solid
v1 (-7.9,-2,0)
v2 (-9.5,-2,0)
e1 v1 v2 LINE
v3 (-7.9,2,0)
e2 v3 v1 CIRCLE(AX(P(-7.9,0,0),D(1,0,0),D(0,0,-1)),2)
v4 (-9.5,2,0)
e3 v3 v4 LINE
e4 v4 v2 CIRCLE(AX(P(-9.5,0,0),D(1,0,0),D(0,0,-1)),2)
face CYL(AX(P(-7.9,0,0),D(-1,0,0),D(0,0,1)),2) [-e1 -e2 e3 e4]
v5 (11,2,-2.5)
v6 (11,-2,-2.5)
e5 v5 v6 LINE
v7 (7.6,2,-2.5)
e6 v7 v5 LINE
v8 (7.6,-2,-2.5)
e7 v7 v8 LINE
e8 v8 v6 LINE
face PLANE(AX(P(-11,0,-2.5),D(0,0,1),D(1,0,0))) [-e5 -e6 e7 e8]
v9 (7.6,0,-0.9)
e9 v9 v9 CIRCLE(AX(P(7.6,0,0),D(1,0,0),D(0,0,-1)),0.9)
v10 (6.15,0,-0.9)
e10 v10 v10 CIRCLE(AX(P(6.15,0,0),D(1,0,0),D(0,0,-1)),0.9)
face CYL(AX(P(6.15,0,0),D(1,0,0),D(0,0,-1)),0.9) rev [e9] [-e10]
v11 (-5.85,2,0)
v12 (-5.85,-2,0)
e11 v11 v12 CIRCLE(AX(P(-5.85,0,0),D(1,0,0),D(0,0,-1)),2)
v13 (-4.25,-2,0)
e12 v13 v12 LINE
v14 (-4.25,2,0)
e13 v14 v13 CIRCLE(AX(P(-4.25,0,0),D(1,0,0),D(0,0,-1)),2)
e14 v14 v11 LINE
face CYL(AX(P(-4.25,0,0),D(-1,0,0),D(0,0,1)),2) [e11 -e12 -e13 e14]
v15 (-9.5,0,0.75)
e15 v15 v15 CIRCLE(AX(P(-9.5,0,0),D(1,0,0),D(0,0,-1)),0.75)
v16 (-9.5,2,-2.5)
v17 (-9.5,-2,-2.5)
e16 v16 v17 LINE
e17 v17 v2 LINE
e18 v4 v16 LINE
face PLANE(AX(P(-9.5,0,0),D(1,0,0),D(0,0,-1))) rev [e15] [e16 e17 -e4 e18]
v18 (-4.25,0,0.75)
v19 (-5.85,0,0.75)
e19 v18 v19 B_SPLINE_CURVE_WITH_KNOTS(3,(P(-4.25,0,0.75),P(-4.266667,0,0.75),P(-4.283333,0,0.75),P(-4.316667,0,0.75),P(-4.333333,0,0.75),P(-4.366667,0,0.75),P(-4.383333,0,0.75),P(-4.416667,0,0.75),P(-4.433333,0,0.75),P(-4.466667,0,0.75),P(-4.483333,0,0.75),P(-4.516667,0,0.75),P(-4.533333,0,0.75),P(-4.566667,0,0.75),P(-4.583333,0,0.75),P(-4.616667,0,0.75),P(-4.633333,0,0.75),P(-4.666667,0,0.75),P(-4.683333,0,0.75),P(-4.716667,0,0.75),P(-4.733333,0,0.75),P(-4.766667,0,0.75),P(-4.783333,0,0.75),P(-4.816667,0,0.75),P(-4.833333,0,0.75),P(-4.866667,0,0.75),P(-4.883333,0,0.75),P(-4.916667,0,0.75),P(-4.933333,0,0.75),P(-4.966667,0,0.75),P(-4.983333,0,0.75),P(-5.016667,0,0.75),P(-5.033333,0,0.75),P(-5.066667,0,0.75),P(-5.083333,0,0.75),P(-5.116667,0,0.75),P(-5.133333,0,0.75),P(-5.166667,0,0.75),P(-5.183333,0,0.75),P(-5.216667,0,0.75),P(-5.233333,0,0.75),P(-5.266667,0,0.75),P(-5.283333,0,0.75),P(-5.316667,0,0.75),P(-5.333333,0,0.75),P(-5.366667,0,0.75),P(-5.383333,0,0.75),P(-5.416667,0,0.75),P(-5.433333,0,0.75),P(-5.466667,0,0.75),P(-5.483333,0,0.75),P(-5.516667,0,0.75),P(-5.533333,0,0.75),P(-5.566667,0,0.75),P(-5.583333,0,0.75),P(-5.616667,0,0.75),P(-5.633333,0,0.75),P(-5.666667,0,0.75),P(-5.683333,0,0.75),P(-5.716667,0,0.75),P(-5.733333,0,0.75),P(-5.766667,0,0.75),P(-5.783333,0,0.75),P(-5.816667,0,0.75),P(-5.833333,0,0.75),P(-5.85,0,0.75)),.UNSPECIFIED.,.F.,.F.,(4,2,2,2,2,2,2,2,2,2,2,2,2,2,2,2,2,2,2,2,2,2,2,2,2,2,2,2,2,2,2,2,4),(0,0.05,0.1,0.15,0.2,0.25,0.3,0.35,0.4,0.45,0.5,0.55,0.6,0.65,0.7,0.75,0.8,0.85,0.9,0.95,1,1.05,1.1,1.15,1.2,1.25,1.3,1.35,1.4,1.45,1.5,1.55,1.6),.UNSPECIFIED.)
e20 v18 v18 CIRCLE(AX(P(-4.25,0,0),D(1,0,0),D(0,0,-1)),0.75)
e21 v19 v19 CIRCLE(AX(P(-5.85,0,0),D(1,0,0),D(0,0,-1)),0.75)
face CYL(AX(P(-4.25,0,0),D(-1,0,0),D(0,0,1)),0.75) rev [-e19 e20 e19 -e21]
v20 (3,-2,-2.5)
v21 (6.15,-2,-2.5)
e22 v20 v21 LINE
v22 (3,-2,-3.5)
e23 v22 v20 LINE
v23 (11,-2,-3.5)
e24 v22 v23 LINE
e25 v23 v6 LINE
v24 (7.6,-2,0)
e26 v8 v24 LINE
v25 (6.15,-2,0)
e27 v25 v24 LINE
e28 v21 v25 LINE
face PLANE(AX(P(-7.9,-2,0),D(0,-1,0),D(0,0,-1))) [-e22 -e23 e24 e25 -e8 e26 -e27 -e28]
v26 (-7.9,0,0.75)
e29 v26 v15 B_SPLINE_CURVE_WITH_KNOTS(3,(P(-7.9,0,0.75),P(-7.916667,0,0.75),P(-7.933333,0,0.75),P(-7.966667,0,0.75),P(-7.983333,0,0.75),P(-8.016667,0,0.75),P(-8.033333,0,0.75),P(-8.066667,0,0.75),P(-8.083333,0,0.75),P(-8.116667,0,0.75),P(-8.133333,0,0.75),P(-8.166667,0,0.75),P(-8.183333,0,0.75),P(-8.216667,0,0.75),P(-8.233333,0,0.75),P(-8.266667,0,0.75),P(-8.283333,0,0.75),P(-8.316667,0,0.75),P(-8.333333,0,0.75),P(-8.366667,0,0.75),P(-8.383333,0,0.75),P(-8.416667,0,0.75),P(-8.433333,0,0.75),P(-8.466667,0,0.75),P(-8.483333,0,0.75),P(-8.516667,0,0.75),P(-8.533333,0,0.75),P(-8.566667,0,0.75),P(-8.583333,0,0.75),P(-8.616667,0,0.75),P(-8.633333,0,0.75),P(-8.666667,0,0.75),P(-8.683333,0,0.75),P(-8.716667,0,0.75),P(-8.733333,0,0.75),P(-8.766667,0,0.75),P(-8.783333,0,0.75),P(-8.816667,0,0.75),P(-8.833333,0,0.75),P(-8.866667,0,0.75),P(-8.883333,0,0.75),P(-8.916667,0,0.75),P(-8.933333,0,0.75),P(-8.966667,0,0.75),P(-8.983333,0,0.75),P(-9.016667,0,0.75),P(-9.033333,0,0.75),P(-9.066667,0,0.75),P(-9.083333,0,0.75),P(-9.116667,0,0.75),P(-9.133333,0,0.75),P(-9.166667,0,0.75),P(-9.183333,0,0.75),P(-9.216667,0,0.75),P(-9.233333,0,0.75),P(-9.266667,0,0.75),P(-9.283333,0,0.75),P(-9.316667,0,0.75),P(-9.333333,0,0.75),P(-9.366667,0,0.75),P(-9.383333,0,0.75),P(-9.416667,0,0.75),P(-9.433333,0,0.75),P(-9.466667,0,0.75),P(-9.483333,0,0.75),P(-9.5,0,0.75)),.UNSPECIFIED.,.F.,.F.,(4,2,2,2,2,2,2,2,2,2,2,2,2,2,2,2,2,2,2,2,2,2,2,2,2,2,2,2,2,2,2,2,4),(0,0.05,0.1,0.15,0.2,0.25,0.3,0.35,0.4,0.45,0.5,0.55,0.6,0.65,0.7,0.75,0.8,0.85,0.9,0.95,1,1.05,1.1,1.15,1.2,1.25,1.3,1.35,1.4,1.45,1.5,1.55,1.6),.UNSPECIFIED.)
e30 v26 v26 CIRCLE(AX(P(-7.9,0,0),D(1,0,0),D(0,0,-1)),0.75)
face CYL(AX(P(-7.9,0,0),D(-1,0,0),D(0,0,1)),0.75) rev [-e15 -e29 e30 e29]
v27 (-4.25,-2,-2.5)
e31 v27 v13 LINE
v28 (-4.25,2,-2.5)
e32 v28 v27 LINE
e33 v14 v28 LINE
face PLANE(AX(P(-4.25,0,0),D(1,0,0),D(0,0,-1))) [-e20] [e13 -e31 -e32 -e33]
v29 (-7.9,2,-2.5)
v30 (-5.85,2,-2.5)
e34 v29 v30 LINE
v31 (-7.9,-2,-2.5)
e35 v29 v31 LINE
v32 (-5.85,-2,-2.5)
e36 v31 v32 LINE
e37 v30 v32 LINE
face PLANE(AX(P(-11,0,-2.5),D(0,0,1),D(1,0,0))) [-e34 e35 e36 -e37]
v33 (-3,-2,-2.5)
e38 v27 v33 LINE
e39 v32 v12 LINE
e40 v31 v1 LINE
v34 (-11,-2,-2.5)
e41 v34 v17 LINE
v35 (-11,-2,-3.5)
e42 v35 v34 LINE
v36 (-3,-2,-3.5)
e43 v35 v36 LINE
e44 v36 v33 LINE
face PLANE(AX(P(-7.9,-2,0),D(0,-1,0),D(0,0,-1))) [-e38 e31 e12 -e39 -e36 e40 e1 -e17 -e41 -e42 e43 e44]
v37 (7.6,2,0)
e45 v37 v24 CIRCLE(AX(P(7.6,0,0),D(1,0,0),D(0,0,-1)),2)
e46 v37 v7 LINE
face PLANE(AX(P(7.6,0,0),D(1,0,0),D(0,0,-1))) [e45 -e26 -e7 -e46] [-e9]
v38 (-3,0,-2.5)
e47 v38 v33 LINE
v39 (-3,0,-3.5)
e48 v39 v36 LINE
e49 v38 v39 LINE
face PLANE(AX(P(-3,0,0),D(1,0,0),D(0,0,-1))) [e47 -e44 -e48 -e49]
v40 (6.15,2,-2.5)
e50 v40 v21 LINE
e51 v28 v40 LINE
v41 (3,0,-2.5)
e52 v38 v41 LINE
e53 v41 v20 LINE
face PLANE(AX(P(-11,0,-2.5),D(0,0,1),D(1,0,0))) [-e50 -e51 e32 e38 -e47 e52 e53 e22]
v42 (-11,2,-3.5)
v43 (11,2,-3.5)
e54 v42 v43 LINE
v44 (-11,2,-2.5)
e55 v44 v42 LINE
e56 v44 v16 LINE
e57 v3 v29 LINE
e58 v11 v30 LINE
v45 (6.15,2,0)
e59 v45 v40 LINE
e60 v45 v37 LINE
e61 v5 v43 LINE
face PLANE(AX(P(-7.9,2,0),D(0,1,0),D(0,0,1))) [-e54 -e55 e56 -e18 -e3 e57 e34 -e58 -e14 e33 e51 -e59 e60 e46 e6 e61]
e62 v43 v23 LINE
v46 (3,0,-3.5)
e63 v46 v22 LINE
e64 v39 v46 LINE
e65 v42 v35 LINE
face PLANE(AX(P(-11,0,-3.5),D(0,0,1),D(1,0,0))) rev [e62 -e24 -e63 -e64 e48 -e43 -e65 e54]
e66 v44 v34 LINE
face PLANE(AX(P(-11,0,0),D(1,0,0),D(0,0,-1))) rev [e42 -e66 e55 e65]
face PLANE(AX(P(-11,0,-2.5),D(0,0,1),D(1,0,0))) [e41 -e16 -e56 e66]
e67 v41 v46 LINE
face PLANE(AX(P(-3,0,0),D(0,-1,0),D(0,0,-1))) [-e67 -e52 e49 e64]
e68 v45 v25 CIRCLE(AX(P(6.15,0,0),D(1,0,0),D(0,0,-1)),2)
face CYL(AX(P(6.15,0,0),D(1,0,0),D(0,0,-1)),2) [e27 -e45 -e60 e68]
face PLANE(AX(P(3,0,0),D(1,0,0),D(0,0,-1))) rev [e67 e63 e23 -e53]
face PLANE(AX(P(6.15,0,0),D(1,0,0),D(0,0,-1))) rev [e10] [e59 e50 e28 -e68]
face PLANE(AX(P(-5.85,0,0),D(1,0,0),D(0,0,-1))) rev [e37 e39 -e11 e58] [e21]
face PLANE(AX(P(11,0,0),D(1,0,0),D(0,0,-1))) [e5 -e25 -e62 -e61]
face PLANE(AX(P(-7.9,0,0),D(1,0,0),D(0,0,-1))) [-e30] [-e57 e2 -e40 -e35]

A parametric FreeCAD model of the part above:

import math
import FreeCAD as App
import Part
import Sketcher
from FreeCAD import Vector

doc = App.newDocument("Part")
body = doc.addObject("PartDesign::Body", "Body")

# Sketch on YZ plane
sketch1 = body.newObject("Sketcher::SketchObject", "Sketch")
sketch1.AttachmentSupport = (doc.getObject("YZ_Plane"), [""])
sketch1.MapMode = "FlatFace"
sketch1.AttachmentOffset = App.Placement(Vector(0, 0, -9.5), App.Rotation())
sketch1.addGeometry([
    Part.LineSegment(Vector(2, -2.5, 0), Vector(2, 0, 0)),  # 0
    Part.ArcOfCircle(Part.Circle(Vector(0, 0, 0), Vector(0, 0, 1), 2), math.radians(0), math.radians(180)),  # 1
    Part.LineSegment(Vector(-2, 0, 0), Vector(-2, -2.5, 0)),  # 2
    Part.LineSegment(Vector(-2, -2.5, 0), Vector(2, -2.5, 0)),  # 3
    Part.Circle(Vector(0, 0, 0), Vector(0, 0, 1), 0.8),  # 4
], False)
sketch1.addConstraint([
    Sketcher.Constraint("Tangent", 0, 2, 1, 1),
    Sketcher.Constraint("Tangent", 1, 2, 2, 1),
    Sketcher.Constraint("Coincident", 2, 2, 3, 1),
    Sketcher.Constraint("Coincident", 3, 2, 0, 1),
    Sketcher.Constraint("Vertical", 0),
    Sketcher.Constraint("Vertical", 2),
    Sketcher.Constraint("Horizontal", 3),
    Sketcher.Constraint("Coincident", 1, 3, -1, 1),
    Sketcher.Constraint("Coincident", 4, 3, -1, 1),
    Sketcher.Constraint("Radius", 1, 2.0),
    Sketcher.Constraint("Diameter", 4, 1.5),
    Sketcher.Constraint("DistanceY", 0, 1, 0, 2, 2.5),
])
pad1 = body.newObject("PartDesign::Pad", "Pad")
pad1.Profile = sketch1
pad1.Length = 1.6
body2 = doc.addObject("PartDesign::Body", "Body001")

# Sketch on YZ plane
sketch2 = body2.newObject("Sketcher::SketchObject", "Sketch001")
sketch2.AttachmentSupport = (doc.getObject("YZ_Plane001"), [""])
sketch2.MapMode = "FlatFace"
sketch2.AttachmentOffset = App.Placement(Vector(0, 0, -5.85), App.Rotation())
sketch2.addGeometry([
    Part.LineSegment(Vector(2, -2.5, 0), Vector(2, 0, 0)),  # 0
    Part.ArcOfCircle(Part.Circle(Vector(0, 0, 0), Vector(0, 0, 1), 2), math.radians(0), math.radians(180)),  # 1
    Part.LineSegment(Vector(-2, 0, 0), Vector(-2, -2.5, 0)),  # 2
    Part.LineSegment(Vector(-2, -2.5, 0), Vector(2, -2.5, 0)),  # 3
    Part.Circle(Vector(0, 0, 0), Vector(0, 0, 1), 0.8),  # 4
], False)
sketch2.addConstraint([
    Sketcher.Constraint("Tangent", 0, 2, 1, 1),
    Sketcher.Constraint("Tangent", 1, 2, 2, 1),
    Sketcher.Constraint("Coincident", 2, 2, 3, 1),
    Sketcher.Constraint("Coincident", 3, 2, 0, 1),
    Sketcher.Constraint("Vertical", 0),
    Sketcher.Constraint("Vertical", 2),
    Sketcher.Constraint("Horizontal", 3),
    Sketcher.Constraint("Coincident", 1, 3, -1, 1),
    Sketcher.Constraint("Coincident", 4, 3, -1, 1),
    Sketcher.Constraint("Radius", 1, 2.0),
    Sketcher.Constraint("Diameter", 4, 1.5),
    Sketcher.Constraint("DistanceY", 0, 1, 0, 2, 2.5),
])
pad2 = body2.newObject("PartDesign::Pad", "Pad001")
pad2.Profile = sketch2
pad2.Length = 1.6
body3 = doc.addObject("PartDesign::Body", "Body002")

# Sketch on YZ plane
sketch3 = body3.newObject("Sketcher::SketchObject", "Sketch002")
sketch3.AttachmentSupport = (doc.getObject("YZ_Plane002"), [""])
sketch3.MapMode = "FlatFace"
sketch3.AttachmentOffset = App.Placement(Vector(0, 0, 7.6), App.Rotation())
sketch3.addGeometry([
    Part.ArcOfCircle(Part.Circle(Vector(0, 0, 0), Vector(0, 0, 1), 2), math.radians(0), math.radians(180)),  # 0
    Part.LineSegment(Vector(-2, 0, 0), Vector(-2, -2.5, 0)),  # 1
    Part.LineSegment(Vector(-2, -2.5, 0), Vector(2, -2.5, 0)),  # 2
    Part.LineSegment(Vector(2, -2.5, 0), Vector(2, 0, 0)),  # 3
    Part.Circle(Vector(0, 0, 0), Vector(0, 0, 1), 0.9),  # 4
], False)
sketch3.addConstraint([
    Sketcher.Constraint("Tangent", 0, 2, 1, 1),
    Sketcher.Constraint("Coincident", 1, 2, 2, 1),
    Sketcher.Constraint("Coincident", 2, 2, 3, 1),
    Sketcher.Constraint("Tangent", 3, 2, 0, 1),
    Sketcher.Constraint("Vertical", 1),
    Sketcher.Constraint("Horizontal", 2),
    Sketcher.Constraint("Vertical", 3),
    Sketcher.Constraint("Coincident", 0, 3, -1, 1),
    Sketcher.Constraint("Coincident", 4, 3, -1, 1),
    Sketcher.Constraint("Radius", 0, 2.0),
    Sketcher.Constraint("Diameter", 4, 1.8),
    Sketcher.Constraint("DistanceY", 1, 2, 1, 1, 2.5),
])
pad3 = body3.newObject("PartDesign::Pad", "Pad002")
pad3.Profile = sketch3
pad3.Length = 1.45
pad3.Reversed = True
body.AllowCompound = True
doc.recompute()

boolean = body.newObject("PartDesign::Boolean", "Boolean")
boolean.Type = "Fuse"
boolean.addObjects([body2])
doc.recompute()

boolean2 = body.newObject("PartDesign::Boolean", "Boolean001")
boolean2.Type = "Fuse"
boolean2.addObjects([body3])

# Sketch on YZ plane
sketch4 = body.newObject("Sketcher::SketchObject", "Sketch003")
sketch4.AttachmentSupport = (doc.getObject("YZ_Plane"), [""])
sketch4.MapMode = "FlatFace"
sketch4.AttachmentOffset = App.Placement(Vector(0, 0, 11), App.Rotation())
sketch4.addGeometry([
    Part.LineSegment(Vector(2, -2.5, 0), Vector(-2, -2.5, 0)),
    Part.LineSegment(Vector(-2, -2.5, 0), Vector(-2, -3.5, 0)),
    Part.LineSegment(Vector(-2, -3.5, 0), Vector(2, -3.5, 0)),
    Part.LineSegment(Vector(2, -3.5, 0), Vector(2, -2.5, 0)),
], False)
sketch4.addConstraint([
    Sketcher.Constraint("Coincident", 0, 2, 1, 1),
    Sketcher.Constraint("Coincident", 1, 2, 2, 1),
    Sketcher.Constraint("Coincident", 2, 2, 3, 1),
    Sketcher.Constraint("Coincident", 3, 2, 0, 1),
    Sketcher.Constraint("Horizontal", 0),
    Sketcher.Constraint("Vertical", 1),
    Sketcher.Constraint("Horizontal", 2),
    Sketcher.Constraint("Vertical", 3),
    Sketcher.Constraint("DistanceX", 0, 2, 0, 1, 4.0),
    Sketcher.Constraint("DistanceY", 1, 2, 1, 1, 1.0),
    Sketcher.Constraint("DistanceX", 0, 2, -1, 1, 2.0),
    Sketcher.Constraint("DistanceY", 0, 2, -1, 1, 2.5),
])
pad4 = body.newObject("PartDesign::Pad", "Pad003")
pad4.Profile = sketch4
pad4.Length = 22
pad4.Reversed = True

# Sketch on YZ plane
sketch5 = body.newObject("Sketcher::SketchObject", "Sketch004")
sketch5.AttachmentSupport = (doc.getObject("YZ_Plane"), [""])
sketch5.MapMode = "FlatFace"
sketch5.AttachmentOffset = App.Placement(Vector(0, 0, 3), App.Rotation())
sketch5.addGeometry([
    Part.LineSegment(Vector(0, -2.5, 0), Vector(-2, -2.5, 0)),
    Part.LineSegment(Vector(-2, -2.5, 0), Vector(-2, -3.5, 0)),
    Part.LineSegment(Vector(-2, -3.5, 0), Vector(0, -3.5, 0)),
    Part.LineSegment(Vector(0, -3.5, 0), Vector(0, -2.5, 0)),
], False)
sketch5.addConstraint([
    Sketcher.Constraint("Coincident", 0, 2, 1, 1),
    Sketcher.Constraint("Coincident", 1, 2, 2, 1),
    Sketcher.Constraint("Coincident", 2, 2, 3, 1),
    Sketcher.Constraint("Coincident", 3, 2, 0, 1),
    Sketcher.Constraint("Horizontal", 0),
    Sketcher.Constraint("Vertical", 1),
    Sketcher.Constraint("Horizontal", 2),
    Sketcher.Constraint("Vertical", 3),
    Sketcher.Constraint("PointOnObject", 2, 2, -2),
    Sketcher.Constraint("DistanceX", 0, 2, 0, 1, 2.0),
    Sketcher.Constraint("DistanceY", 1, 2, 1, 1, 1.0),
    Sketcher.Constraint("DistanceY", 0, 2, -1, 1, 2.5),
])
pocket1 = body.newObject("PartDesign::Pocket", "Pocket")
pocket1.Profile = sketch5
pocket1.Length = 6

doc.recompute()
